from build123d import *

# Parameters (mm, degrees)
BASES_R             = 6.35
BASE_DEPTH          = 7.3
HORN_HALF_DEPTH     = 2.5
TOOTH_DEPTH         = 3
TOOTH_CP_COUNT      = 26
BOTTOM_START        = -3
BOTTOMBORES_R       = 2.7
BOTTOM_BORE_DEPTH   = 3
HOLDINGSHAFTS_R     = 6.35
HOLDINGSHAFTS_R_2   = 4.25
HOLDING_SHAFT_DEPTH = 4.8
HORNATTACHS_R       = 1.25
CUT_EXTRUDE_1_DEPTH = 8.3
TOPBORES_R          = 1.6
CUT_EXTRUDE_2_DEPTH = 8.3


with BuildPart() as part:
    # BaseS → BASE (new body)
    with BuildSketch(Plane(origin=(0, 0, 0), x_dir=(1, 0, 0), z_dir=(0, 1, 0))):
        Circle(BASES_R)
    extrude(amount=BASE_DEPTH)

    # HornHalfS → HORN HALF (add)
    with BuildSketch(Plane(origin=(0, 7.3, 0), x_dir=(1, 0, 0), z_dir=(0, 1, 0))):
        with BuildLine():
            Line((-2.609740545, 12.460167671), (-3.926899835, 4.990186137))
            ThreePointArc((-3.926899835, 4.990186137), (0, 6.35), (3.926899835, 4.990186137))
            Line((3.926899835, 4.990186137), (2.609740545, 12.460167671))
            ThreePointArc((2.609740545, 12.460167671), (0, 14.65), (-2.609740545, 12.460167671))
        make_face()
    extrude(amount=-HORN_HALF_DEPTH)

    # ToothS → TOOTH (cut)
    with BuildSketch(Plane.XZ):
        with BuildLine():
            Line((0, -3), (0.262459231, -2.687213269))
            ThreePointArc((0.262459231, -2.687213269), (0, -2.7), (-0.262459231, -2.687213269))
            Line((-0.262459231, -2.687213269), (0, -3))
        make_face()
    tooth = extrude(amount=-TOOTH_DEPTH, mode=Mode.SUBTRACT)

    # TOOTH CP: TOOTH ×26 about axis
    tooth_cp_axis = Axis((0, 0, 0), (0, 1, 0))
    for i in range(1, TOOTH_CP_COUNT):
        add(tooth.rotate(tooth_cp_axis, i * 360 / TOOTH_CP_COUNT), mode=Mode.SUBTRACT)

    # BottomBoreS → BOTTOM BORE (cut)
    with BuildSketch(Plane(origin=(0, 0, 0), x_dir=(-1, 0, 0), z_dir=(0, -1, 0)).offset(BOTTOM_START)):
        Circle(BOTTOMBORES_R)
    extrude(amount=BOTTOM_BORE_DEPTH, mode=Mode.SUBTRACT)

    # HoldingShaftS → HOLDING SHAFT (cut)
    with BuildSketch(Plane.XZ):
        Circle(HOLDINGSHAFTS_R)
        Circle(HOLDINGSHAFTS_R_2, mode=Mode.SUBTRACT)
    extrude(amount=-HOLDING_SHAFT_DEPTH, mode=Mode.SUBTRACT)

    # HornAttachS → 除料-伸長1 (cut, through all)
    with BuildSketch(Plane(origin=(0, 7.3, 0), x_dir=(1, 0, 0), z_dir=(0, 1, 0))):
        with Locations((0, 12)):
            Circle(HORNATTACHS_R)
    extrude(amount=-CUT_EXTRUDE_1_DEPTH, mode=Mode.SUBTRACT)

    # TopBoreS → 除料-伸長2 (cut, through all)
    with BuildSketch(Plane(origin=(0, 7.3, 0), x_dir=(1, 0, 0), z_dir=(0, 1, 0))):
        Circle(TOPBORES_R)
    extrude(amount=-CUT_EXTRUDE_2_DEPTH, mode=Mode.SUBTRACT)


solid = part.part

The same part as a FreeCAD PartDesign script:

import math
import FreeCAD as App
import Part
import Sketcher
Q = App.Units.Quantity

doc = App.newDocument("Part")
body = doc.addObject("PartDesign::Body", "Body")

# Sketch on XZ plane
sketch1 = body.newObject("Sketcher::SketchObject", "Sketch")
sketch1.AttachmentSupport = (doc.getObject("XZ_Plane"), [""])
sketch1.MapMode = "FlatFace"
sketch1.addGeometry(Part.Circle(App.Vector(0, 0, 0), App.Vector(0, 0, 1), 6), False)
sketch1.addConstraint([
    Sketcher.Constraint("Coincident", 0, 3, -1, 1),
    Sketcher.Constraint("Diameter", 0, 12.7),
])
pad1 = body.newObject("PartDesign::Pad", "Pad")
pad1.Profile = sketch1
pad1.Length = 7.3
pad1.Reversed = True

# Sketch on XZ plane
sketch2 = body.newObject("Sketcher::SketchObject", "Sketch001")
sketch2.AttachmentSupport = (doc.getObject("XZ_Plane"), [""])
sketch2.MapMode = "FlatFace"
sketch2.AttachmentOffset = App.Placement(App.Vector(0, 0, -7.3), App.Rotation())
sketch2.addGeometry([
    Part.LineSegment(App.Vector(-2.6, -12.5, 0), App.Vector(-3.9, -5, 0)),
    Part.ArcOfCircle(Part.Circle(App.Vector(0, 0, 0), App.Vector(0, 0, 1), 6.3), math.radians(-128), math.radians(-52)),
    Part.LineSegment(App.Vector(3.9, -5, 0), App.Vector(2.6, -12.5, 0)),
    Part.ArcOfCircle(Part.Circle(App.Vector(0, -12, 0), App.Vector(0, 0, 1), 2.6), math.radians(-170), math.radians(-10)),
], False)
sketch2.addConstraint([
    Sketcher.Constraint("Coincident", 0, 2, 1, 1),
    Sketcher.Constraint("Coincident", 1, 2, 2, 1),
    Sketcher.Constraint("Tangent", 2, 2, 3, 2),
    Sketcher.Constraint("Tangent", 3, 1, 0, 1),
    Sketcher.Constraint("Coincident", 1, 3, -1, 1),
    Sketcher.Constraint("Symmetric", 2, 2, 3, 1, -2),
    Sketcher.Constraint("Angle", 0, Q("100 deg")),
    Sketcher.Constraint("Radius", 1, 6.35),
    Sketcher.Constraint("Radius", 3, 2.65),
    Sketcher.Constraint("DistanceY", 3, 3, -1, 1, 12.0),
])
pad2 = body.newObject("PartDesign::Pad", "Pad001")
pad2.Profile = sketch2
pad2.Length = 2.5

# Sketch on XZ plane
sketch3 = body.newObject("Sketcher::SketchObject", "Sketch002")
sketch3.AttachmentSupport = (doc.getObject("XZ_Plane"), [""])
sketch3.MapMode = "FlatFace"
sketch3.addGeometry([
    Part.LineSegment(App.Vector(0, -3, 0), App.Vector(0.26, -2.69, 0)),
    Part.ArcOfCircle(Part.Circle(App.Vector(0, 0, 0), App.Vector(0, 0, 1), 2.7), math.radians(-95.58), math.radians(-84.42)),
    Part.LineSegment(App.Vector(-0.26, -2.69, 0), App.Vector(0, -3, 0)),
], False)
sketch3.addConstraint([
    Sketcher.Constraint("Coincident", 0, 2, 1, 2),
    Sketcher.Constraint("Coincident", 1, 1, 2, 1),
    Sketcher.Constraint("Coincident", 2, 2, 0, 1),
    Sketcher.Constraint("Coincident", 1, 3, -1, 1),
    Sketcher.Constraint("PointOnObject", 2, 2, -2),
    Sketcher.Constraint("Horizontal", 0, 2, 1, 1),
    Sketcher.Constraint("Radius", 1, 2.7),
    Sketcher.Constraint("Angle", 0, Q("50 deg")),
    Sketcher.Constraint("DistanceY", 2, 2, -1, 1, 3.0),
])
pocket1 = body.newObject("PartDesign::Pocket", "Pocket")
pocket1.Profile = sketch3
pocket1.Length = 3
doc.recompute()

polarpattern = body.newObject("PartDesign::PolarPattern", "PolarPattern")
polarpattern.Originals = [pocket1]
polarpattern.Axis = (doc.getObject("Y_Axis"), [""])
polarpattern.Angle = 360
polarpattern.Occurrences = 26
body.Tip = polarpattern

# Sketch on XZ plane
sketch4 = body.newObject("Sketcher::SketchObject", "Sketch003")
sketch4.AttachmentSupport = (doc.getObject("XZ_Plane"), [""])
sketch4.MapMode = "FlatFace"
sketch4.AttachmentOffset = App.Placement(App.Vector(0, 0, -3), App.Rotation())
sketch4.addGeometry(Part.Circle(App.Vector(0, 0, 0), App.Vector(0, 0, 1), 2.7), False)
sketch4.addConstraint([
    Sketcher.Constraint("Coincident", 0, 3, -1, 1),
    Sketcher.Constraint("Diameter", 0, 5.4),
])
pocket2 = body.newObject("PartDesign::Pocket", "Pocket001")
pocket2.Profile = sketch4
pocket2.Length = 3
pocket2.Reversed = True

# Sketch on XZ plane
sketch5 = body.newObject("Sketcher::SketchObject", "Sketch004")
sketch5.AttachmentSupport = (doc.getObject("XZ_Plane"), [""])
sketch5.MapMode = "FlatFace"
sketch5.addGeometry([
    Part.Circle(App.Vector(0, 0, 0), App.Vector(0, 0, 1), 6.3),
    Part.Circle(App.Vector(0, 0, 0), App.Vector(0, 0, 1), 4.2),
], False)
sketch5.addConstraint([
    Sketcher.Constraint("Coincident", 0, 3, -1, 1),
    Sketcher.Constraint("Coincident", 1, 3, -1, 1),
    Sketcher.Constraint("Diameter", 0, 12.7),
    Sketcher.Constraint("Diameter", 1, 8.5),
])
pocket3 = body.newObject("PartDesign::Pocket", "Pocket002")
pocket3.Profile = sketch5
pocket3.Length = 4.8

# Sketch on XZ plane
sketch6 = body.newObject("Sketcher::SketchObject", "Sketch005")
sketch6.AttachmentSupport = (doc.getObject("XZ_Plane"), [""])
sketch6.MapMode = "FlatFace"
sketch6.AttachmentOffset = App.Placement(App.Vector(0, 0, -7.3), App.Rotation())
sketch6.addGeometry(Part.Circle(App.Vector(0, -12, 0), App.Vector(0, 0, 1), 1.2), False)
sketch6.addConstraint([
    Sketcher.Constraint("PointOnObject", 0, 3, -2),
    Sketcher.Constraint("Diameter", 0, 2.5),
    Sketcher.Constraint("DistanceY", 0, 3, -1, 1, 12.0),
])
pocket4 = body.newObject("PartDesign::Pocket", "Pocket003")
pocket4.Profile = sketch6
pocket4.Type = "ThroughAll"
pocket4.Reversed = True

# Sketch on XZ plane
sketch7 = body.newObject("Sketcher::SketchObject", "Sketch006")
sketch7.AttachmentSupport = (doc.getObject("XZ_Plane"), [""])
sketch7.MapMode = "FlatFace"
sketch7.AttachmentOffset = App.Placement(App.Vector(0, 0, -7.3), App.Rotation())
sketch7.addGeometry(Part.Circle(App.Vector(0, 0, 0), App.Vector(0, 0, 1), 1.6), False)
sketch7.addConstraint([
    Sketcher.Constraint("Coincident", 0, 3, -1, 1),
    Sketcher.Constraint("Diameter", 0, 3.2),
])
pocket5 = body.newObject("PartDesign::Pocket", "Pocket004")
pocket5.Profile = sketch7
pocket5.Type = "ThroughAll"
pocket5.Reversed = True

doc.recompute()
